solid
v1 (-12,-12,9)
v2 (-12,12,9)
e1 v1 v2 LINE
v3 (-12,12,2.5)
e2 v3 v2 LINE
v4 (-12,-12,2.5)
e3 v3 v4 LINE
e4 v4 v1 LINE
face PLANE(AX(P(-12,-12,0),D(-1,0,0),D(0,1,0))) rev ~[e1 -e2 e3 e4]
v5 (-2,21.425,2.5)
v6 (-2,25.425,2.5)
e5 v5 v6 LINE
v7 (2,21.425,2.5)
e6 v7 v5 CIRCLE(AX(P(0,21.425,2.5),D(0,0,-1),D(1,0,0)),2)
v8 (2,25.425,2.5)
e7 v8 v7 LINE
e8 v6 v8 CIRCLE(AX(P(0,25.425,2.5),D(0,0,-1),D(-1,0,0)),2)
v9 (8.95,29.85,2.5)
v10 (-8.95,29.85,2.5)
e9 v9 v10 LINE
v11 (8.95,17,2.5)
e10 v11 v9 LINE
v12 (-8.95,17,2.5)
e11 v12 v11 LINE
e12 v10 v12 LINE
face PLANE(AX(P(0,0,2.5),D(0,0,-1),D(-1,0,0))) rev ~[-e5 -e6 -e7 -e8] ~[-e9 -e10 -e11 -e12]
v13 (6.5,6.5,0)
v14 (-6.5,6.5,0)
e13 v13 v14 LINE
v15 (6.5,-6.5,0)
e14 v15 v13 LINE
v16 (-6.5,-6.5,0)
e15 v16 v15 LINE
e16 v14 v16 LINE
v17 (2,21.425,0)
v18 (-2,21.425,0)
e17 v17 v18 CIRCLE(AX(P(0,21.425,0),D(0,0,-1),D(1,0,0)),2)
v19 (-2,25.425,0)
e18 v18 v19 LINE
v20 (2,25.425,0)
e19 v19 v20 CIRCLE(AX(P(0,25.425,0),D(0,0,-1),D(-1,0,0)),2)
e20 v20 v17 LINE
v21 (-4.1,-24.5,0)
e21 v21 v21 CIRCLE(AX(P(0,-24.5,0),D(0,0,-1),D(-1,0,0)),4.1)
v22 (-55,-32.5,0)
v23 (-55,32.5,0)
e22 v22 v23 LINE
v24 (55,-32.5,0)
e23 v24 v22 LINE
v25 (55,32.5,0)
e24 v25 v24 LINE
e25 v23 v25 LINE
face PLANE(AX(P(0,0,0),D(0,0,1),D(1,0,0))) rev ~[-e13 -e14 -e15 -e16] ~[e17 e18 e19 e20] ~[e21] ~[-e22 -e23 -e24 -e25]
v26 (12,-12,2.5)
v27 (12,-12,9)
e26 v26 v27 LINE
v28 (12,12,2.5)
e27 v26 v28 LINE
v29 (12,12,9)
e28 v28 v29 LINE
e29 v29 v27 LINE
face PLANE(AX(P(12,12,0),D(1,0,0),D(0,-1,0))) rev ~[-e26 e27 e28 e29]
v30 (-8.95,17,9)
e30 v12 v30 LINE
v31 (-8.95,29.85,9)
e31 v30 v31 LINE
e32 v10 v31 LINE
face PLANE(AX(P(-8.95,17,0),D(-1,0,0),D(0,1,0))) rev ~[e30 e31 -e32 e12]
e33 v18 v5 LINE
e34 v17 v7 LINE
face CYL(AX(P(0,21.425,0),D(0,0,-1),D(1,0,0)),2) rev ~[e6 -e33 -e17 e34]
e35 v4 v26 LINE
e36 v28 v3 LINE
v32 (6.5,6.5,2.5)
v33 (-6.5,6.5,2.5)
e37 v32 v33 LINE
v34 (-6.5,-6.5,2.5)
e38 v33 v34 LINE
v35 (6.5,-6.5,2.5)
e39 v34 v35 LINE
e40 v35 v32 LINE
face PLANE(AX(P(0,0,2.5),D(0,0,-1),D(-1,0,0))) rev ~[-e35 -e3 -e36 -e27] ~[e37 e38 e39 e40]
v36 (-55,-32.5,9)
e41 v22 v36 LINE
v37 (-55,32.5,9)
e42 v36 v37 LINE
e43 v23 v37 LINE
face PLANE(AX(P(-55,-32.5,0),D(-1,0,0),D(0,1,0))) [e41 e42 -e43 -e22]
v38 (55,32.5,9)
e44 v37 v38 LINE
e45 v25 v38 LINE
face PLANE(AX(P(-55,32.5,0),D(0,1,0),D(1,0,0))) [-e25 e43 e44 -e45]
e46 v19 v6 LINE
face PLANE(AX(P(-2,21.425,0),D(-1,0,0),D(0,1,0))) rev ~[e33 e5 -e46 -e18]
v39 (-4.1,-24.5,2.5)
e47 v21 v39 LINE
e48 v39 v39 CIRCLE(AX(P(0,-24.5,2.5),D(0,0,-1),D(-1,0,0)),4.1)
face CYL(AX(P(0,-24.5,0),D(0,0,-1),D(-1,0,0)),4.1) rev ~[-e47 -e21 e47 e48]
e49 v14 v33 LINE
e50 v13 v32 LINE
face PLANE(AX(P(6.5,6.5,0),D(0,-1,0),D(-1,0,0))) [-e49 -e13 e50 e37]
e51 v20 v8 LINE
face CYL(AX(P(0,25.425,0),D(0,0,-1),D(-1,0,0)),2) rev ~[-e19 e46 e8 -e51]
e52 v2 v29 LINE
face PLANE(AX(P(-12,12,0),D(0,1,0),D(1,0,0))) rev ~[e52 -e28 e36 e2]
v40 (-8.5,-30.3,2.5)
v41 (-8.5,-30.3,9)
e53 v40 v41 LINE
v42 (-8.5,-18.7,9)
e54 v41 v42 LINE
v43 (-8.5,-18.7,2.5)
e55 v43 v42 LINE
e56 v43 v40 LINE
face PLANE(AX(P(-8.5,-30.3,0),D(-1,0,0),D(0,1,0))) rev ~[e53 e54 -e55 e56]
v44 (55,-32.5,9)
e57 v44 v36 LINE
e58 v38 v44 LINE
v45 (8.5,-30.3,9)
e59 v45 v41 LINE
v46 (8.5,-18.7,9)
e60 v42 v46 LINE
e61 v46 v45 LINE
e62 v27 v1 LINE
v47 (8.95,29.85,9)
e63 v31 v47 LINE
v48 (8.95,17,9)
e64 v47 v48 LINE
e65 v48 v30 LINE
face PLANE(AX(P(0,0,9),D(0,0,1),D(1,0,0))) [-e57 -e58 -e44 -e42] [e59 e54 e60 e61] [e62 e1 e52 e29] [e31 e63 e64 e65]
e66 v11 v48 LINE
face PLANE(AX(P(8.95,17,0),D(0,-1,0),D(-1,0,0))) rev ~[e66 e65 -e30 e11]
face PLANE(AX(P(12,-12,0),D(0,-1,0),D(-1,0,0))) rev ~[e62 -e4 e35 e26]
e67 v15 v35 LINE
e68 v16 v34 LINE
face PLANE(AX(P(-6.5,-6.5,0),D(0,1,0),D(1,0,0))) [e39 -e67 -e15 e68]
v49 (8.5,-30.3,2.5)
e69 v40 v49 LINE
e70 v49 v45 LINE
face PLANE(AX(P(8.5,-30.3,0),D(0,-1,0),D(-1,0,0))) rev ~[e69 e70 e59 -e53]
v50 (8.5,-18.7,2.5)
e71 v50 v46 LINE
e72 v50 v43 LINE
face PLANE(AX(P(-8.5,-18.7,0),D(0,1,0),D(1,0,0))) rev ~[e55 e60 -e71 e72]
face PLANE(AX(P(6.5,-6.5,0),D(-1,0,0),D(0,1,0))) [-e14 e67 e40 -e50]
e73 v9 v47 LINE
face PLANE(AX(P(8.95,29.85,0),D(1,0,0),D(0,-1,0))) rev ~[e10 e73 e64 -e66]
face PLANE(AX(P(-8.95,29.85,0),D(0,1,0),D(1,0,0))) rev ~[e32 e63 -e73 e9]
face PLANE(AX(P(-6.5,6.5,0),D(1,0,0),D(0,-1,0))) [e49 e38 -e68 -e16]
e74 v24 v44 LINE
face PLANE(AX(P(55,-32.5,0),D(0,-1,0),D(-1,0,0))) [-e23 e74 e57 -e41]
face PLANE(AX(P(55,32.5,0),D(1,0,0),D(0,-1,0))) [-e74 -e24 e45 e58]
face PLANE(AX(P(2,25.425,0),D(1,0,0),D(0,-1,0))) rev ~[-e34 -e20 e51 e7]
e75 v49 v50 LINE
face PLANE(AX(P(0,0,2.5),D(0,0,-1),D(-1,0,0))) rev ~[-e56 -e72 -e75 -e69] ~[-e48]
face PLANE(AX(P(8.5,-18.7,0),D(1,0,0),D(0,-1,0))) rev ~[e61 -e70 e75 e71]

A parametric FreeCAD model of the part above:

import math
import FreeCAD as App
import Part
import Sketcher

V = App.Vector


def add_polygon(sketch, points):
    """Adds a closed chain of lines whose ends are joined by coincident constraints."""
    first, n = sketch.GeometryCount, len(points)
    for a, b in zip(points, points[1:] + points[:1]):
        sketch.addGeometry(Part.LineSegment(App.Vector(*a, 0), App.Vector(*b, 0)), False)
    for i in range(n):
        sketch.addConstraint(Sketcher.Constraint("Coincident", first + i, 2, first + (i + 1) % n, 1))

doc = App.newDocument("Part")
body = doc.addObject("PartDesign::Body", "Body")

# Sketch on XY plane
sketch1 = doc.addObject("Sketcher::SketchObject", "Sketch")
body.addObject(sketch1)
sketch1.AttachmentSupport = (doc.XY_Plane, [""])
sketch1.MapMode = "FlatFace"
add_polygon(sketch1, [(55, 32), (-55, 32), (-55, -32), (55, -32)])  # lines 0-3
add_polygon(sketch1, [(-8, -30), (-8, -19), (8, -19), (8, -30)])  # lines 4-7
add_polygon(sketch1, [(-12, -12), (-12, 12), (12, 12), (12, -12)])  # lines 8-11
add_polygon(sketch1, [(-9, 17), (-9, 30), (9, 30), (9, 17)])  # lines 12-15
sketch1.addConstraint(Sketcher.Constraint("Horizontal", 0))
sketch1.addConstraint(Sketcher.Constraint("Vertical", 1))
sketch1.addConstraint(Sketcher.Constraint("Horizontal", 2))
sketch1.addConstraint(Sketcher.Constraint("Vertical", 3))
sketch1.addConstraint(Sketcher.Constraint("Vertical", 4))
sketch1.addConstraint(Sketcher.Constraint("Horizontal", 5))
sketch1.addConstraint(Sketcher.Constraint("Vertical", 6))
sketch1.addConstraint(Sketcher.Constraint("Horizontal", 7))
sketch1.addConstraint(Sketcher.Constraint("Vertical", 8))
sketch1.addConstraint(Sketcher.Constraint("Horizontal", 9))
sketch1.addConstraint(Sketcher.Constraint("Vertical", 10))
sketch1.addConstraint(Sketcher.Constraint("Horizontal", 11))
sketch1.addConstraint(Sketcher.Constraint("Vertical", 12))
sketch1.addConstraint(Sketcher.Constraint("Horizontal", 13))
sketch1.addConstraint(Sketcher.Constraint("Vertical", 14))
sketch1.addConstraint(Sketcher.Constraint("Horizontal", 15))
sketch1.addConstraint(Sketcher.Constraint("Symmetric", 0, 2, 2, 2, -1, 1))
sketch1.addConstraint(Sketcher.Constraint("Symmetric", 8, 2, 10, 2, -1, 1))
sketch1.addConstraint(Sketcher.Constraint("Equal", 11, 8))
sketch1.addConstraint(Sketcher.Constraint("DistanceX", 0, 2, 0, 1, 110.0))
sketch1.addConstraint(Sketcher.Constraint("DistanceX", 5, 1, 5, 2, 17.0))
sketch1.addConstraint(Sketcher.Constraint("DistanceX", 9, 1, 9, 2, 24.0))
sketch1.addConstraint(Sketcher.Constraint("DistanceY", 1, 2, 1, 1, 65.0))
sketch1.addConstraint(Sketcher.Constraint("DistanceX", 13, 1, 13, 2, 17.9))
sketch1.addConstraint(Sketcher.Constraint("DistanceY", 4, 1, 4, 2, 11.6))
sketch1.addConstraint(Sketcher.Constraint("DistanceY", -1, 1, 14, 2, 17.0))
sketch1.addConstraint(Sketcher.Constraint("DistanceY", 12, 1, 12, 2, 12.85))
sketch1.addConstraint(Sketcher.Constraint("DistanceX", 4, 2, -1, 1, 8.5))
sketch1.addConstraint(Sketcher.Constraint("DistanceY", 4, 2, -1, 1, 18.7))
sketch1.addConstraint(Sketcher.Constraint("DistanceX", 12, 2, -1, 1, 8.95))
pad1 = doc.addObject("PartDesign::Pad", "Pad")
body.addObject(pad1)
pad1.Profile = sketch1
pad1.Length = 9

# Sketch on XY plane
sketch2 = doc.addObject("Sketcher::SketchObject", "Sketch001")
body.addObject(sketch2)
sketch2.AttachmentSupport = (doc.XY_Plane, [""])
sketch2.MapMode = "FlatFace"
add_polygon(sketch2, [(-8.5, -18.7), (8.5, -18.7), (8.5, -30.3), (-8.5, -30.3)])  # lines 0-3
sketch2.addGeometry(Part.Circle(V(0, -24.5, 0), V(0, 0, 1), 4.1), False)  # 4
add_polygon(sketch2, [(-12, 12), (12, 12), (12, -12), (-12, -12)])  # lines 5-8
add_polygon(sketch2, [(-6.5, 6.5), (-6.5, -6.5), (6.5, -6.5), (6.5, 6.5)])  # lines 9-12
add_polygon(sketch2, [(-8.9, 29.9), (8.9, 29.9), (8.9, 17), (-8.9, 17)])  # lines 13-16
sketch2.addGeometry(Part.LineSegment(V(2, 21.4, 0), V(2, 25.4, 0)), False)  # 17
sketch2.addGeometry(Part.ArcOfCircle(Part.Circle(V(0, 25.4, 0), V(0, 0, 1), 2), math.radians(0), math.radians(180)), False)  # 18
sketch2.addGeometry(Part.LineSegment(V(-2, 25.4, 0), V(-2, 21.4, 0)), False)  # 19
sketch2.addGeometry(Part.ArcOfCircle(Part.Circle(V(0, 21.4, 0), V(0, 0, 1), 2), math.radians(180), math.radians(360)), False)  # 20
sketch2.addConstraint(Sketcher.Constraint("Tangent", 17, 2, 18, 1))
sketch2.addConstraint(Sketcher.Constraint("Tangent", 18, 2, 19, 1))
sketch2.addConstraint(Sketcher.Constraint("Tangent", 19, 2, 20, 1))
sketch2.addConstraint(Sketcher.Constraint("Tangent", 20, 2, 17, 1))
sketch2.addConstraint(Sketcher.Constraint("Horizontal", 0))
sketch2.addConstraint(Sketcher.Constraint("Vertical", 1))
sketch2.addConstraint(Sketcher.Constraint("Horizontal", 2))
sketch2.addConstraint(Sketcher.Constraint("Vertical", 3))
sketch2.addConstraint(Sketcher.Constraint("Horizontal", 5))
sketch2.addConstraint(Sketcher.Constraint("Vertical", 6))
sketch2.addConstraint(Sketcher.Constraint("Horizontal", 7))
sketch2.addConstraint(Sketcher.Constraint("Vertical", 8))
sketch2.addConstraint(Sketcher.Constraint("Vertical", 9))
sketch2.addConstraint(Sketcher.Constraint("Horizontal", 10))
sketch2.addConstraint(Sketcher.Constraint("Vertical", 11))
sketch2.addConstraint(Sketcher.Constraint("Horizontal", 12))
sketch2.addConstraint(Sketcher.Constraint("Horizontal", 13))
sketch2.addConstraint(Sketcher.Constraint("Vertical", 14))
sketch2.addConstraint(Sketcher.Constraint("Horizontal", 15))
sketch2.addConstraint(Sketcher.Constraint("Vertical", 16))
sketch2.addConstraint(Sketcher.Constraint("Vertical", 17))
sketch2.addConstraint(Sketcher.Constraint("Vertical", 19))
sketch2.addConstraint(Sketcher.Constraint("Symmetric", 5, 2, 7, 2, -1, 1))
sketch2.addConstraint(Sketcher.Constraint("Symmetric", 9, 2, 11, 2, -1, 1))
sketch2.addConstraint(Sketcher.Constraint("PointOnObject", 4, 3, -2))
sketch2.addConstraint(Sketcher.Constraint("PointOnObject", 18, 3, -2))
sketch2.addConstraint(Sketcher.Constraint("Equal", 7, 6))
sketch2.addConstraint(Sketcher.Constraint("Equal", 12, 9))
sketch2.addConstraint(Sketcher.Constraint("Radius", 18, 2.0))
sketch2.addConstraint(Sketcher.Constraint("Diameter", 4, 8.2))
sketch2.addConstraint(Sketcher.Constraint("DistanceX", 0, 1, 0, 2, 17.0))
sketch2.addConstraint(Sketcher.Constraint("DistanceX", 5, 1, 5, 2, 24.0))
sketch2.addConstraint(Sketcher.Constraint("DistanceX", 10, 1, 10, 2, 13.0))
sketch2.addConstraint(Sketcher.Constraint("DistanceY", 17, 1, 17, 2, 4.0))
sketch2.addConstraint(Sketcher.Constraint("DistanceX", 13, 1, 13, 2, 17.9))
sketch2.addConstraint(Sketcher.Constraint("DistanceY", 1, 2, 1, 1, 11.6))
sketch2.addConstraint(Sketcher.Constraint("DistanceY", -1, 1, 14, 2, 17.0))
sketch2.addConstraint(Sketcher.Constraint("DistanceX", 3, 2, 9, 2, 2.0))
sketch2.addConstraint(Sketcher.Constraint("DistanceY", 14, 2, 14, 1, 12.85))
sketch2.addConstraint(Sketcher.Constraint("DistanceY", 4, 3, 9, 2, 18.0))
sketch2.addConstraint(Sketcher.Constraint("DistanceY", 0, 2, -1, 1, 18.7))
sketch2.addConstraint(Sketcher.Constraint("DistanceX", -1, 1, 13, 2, 8.95))
sketch2.addConstraint(Sketcher.Constraint("DistanceY", -1, 1, 18, 3, 25.425))
pad2 = doc.addObject("PartDesign::Pad", "Pad001")
body.addObject(pad2)
pad2.Profile = sketch2
pad2.Length = 2.5

doc.recompute()
